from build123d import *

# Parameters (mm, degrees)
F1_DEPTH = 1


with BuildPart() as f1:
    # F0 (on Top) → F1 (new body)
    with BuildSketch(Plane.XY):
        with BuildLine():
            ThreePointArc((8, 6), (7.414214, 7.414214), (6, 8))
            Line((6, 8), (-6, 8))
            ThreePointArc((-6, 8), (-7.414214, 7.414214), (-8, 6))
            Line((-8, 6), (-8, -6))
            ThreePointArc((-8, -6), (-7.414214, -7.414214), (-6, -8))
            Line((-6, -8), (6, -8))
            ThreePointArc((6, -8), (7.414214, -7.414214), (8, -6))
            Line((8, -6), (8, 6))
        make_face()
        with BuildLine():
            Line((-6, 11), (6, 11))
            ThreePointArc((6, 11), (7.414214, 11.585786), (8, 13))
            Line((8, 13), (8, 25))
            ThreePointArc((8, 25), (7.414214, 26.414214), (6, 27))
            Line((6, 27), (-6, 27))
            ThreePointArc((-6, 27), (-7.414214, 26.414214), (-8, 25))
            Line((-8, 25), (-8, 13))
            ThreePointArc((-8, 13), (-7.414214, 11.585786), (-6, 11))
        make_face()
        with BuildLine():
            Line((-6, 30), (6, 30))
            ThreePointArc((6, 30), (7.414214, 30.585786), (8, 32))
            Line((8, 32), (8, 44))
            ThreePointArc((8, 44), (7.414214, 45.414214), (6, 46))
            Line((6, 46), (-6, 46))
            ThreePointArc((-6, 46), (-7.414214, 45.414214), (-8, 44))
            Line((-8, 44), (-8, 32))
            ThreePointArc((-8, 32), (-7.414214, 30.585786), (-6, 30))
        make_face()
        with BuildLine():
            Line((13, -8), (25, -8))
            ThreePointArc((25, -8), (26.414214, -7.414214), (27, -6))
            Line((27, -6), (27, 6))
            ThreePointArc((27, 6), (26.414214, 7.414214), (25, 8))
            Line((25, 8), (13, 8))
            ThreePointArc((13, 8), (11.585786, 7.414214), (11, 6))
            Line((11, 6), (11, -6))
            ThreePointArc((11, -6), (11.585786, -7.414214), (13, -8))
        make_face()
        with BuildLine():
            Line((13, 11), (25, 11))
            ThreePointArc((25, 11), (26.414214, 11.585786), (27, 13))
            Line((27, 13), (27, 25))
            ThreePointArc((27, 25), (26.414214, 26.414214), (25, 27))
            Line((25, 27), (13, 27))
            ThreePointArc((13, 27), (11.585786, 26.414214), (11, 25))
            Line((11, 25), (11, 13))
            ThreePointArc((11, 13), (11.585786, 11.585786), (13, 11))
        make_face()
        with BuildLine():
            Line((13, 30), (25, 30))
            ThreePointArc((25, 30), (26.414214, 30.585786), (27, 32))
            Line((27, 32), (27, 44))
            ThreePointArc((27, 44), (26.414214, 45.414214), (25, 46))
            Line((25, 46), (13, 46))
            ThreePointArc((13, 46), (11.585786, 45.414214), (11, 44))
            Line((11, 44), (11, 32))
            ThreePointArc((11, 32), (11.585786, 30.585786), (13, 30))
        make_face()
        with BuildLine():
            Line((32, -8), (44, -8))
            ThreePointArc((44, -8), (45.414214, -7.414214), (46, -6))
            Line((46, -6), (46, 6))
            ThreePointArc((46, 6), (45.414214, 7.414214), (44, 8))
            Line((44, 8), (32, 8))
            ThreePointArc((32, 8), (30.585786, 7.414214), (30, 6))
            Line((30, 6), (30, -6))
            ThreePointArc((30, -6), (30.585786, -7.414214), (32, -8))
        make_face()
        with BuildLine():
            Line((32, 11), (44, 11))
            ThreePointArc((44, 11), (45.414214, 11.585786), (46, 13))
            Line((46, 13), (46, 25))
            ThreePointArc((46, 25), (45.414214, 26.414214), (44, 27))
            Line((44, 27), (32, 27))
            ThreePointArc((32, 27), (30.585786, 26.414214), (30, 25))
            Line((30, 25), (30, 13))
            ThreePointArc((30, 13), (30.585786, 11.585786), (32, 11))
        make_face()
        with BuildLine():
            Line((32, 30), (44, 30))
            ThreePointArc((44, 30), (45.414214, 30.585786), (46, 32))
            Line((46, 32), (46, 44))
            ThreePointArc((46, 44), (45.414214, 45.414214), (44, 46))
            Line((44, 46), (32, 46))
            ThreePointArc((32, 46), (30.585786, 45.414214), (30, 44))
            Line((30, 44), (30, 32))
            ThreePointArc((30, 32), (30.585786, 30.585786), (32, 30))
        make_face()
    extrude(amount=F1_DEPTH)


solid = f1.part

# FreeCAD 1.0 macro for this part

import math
import FreeCAD as App
import Part
import Sketcher

doc = App.newDocument("Part")
body = doc.addObject("PartDesign::Body", "Body")
body.AllowCompound = True

# Sketch on XY plane
sketch1 = body.newObject("Sketcher::SketchObject", "Sketch")
sketch1.AttachmentSupport = (doc.getObject("XY_Plane"), [""])
sketch1.MapMode = "FlatFace"
sketch1.addGeometry([
    Part.ArcOfCircle(Part.Circle(App.Vector(6, 6, 0), App.Vector(0, 0, 1), 2), math.radians(0), math.radians(90)),  # 0
    Part.LineSegment(App.Vector(6, 8, 0), App.Vector(-6, 8, 0)),  # 1
    Part.ArcOfCircle(Part.Circle(App.Vector(-6, 6, 0), App.Vector(0, 0, 1), 2), math.radians(90), math.radians(180)),  # 2
    Part.LineSegment(App.Vector(-8, 6, 0), App.Vector(-8, -6, 0)),  # 3
    Part.ArcOfCircle(Part.Circle(App.Vector(-6, -6, 0), App.Vector(0, 0, 1), 2), math.radians(180), math.radians(270)),  # 4
    Part.LineSegment(App.Vector(-6, -8, 0), App.Vector(6, -8, 0)),  # 5
    Part.ArcOfCircle(Part.Circle(App.Vector(6, -6, 0), App.Vector(0, 0, 1), 2), math.radians(-90), math.radians(0)),  # 6
    Part.LineSegment(App.Vector(8, -6, 0), App.Vector(8, 6, 0)),  # 7
    Part.LineSegment(App.Vector(-6, 11, 0), App.Vector(6, 11, 0)),  # 8
    Part.ArcOfCircle(Part.Circle(App.Vector(6, 13, 0), App.Vector(0, 0, 1), 2), math.radians(-90), math.radians(0)),  # 9
    Part.LineSegment(App.Vector(8, 13, 0), App.Vector(8, 25, 0)),  # 10
    Part.ArcOfCircle(Part.Circle(App.Vector(6, 25, 0), App.Vector(0, 0, 1), 2), math.radians(0), math.radians(90)),  # 11
    Part.LineSegment(App.Vector(6, 27, 0), App.Vector(-6, 27, 0)),  # 12
    Part.ArcOfCircle(Part.Circle(App.Vector(-6, 25, 0), App.Vector(0, 0, 1), 2), math.radians(90), math.radians(180)),  # 13
    Part.LineSegment(App.Vector(-8, 25, 0), App.Vector(-8, 13, 0)),  # 14
    Part.ArcOfCircle(Part.Circle(App.Vector(-6, 13, 0), App.Vector(0, 0, 1), 2), math.radians(180), math.radians(270)),  # 15
    Part.LineSegment(App.Vector(-6, 30, 0), App.Vector(6, 30, 0)),  # 16
    Part.ArcOfCircle(Part.Circle(App.Vector(6, 32, 0), App.Vector(0, 0, 1), 2), math.radians(-90), math.radians(0)),  # 17
    Part.LineSegment(App.Vector(8, 32, 0), App.Vector(8, 44, 0)),  # 18
    Part.ArcOfCircle(Part.Circle(App.Vector(6, 44, 0), App.Vector(0, 0, 1), 2), math.radians(0), math.radians(90)),  # 19
    Part.LineSegment(App.Vector(6, 46, 0), App.Vector(-6, 46, 0)),  # 20
    Part.ArcOfCircle(Part.Circle(App.Vector(-6, 44, 0), App.Vector(0, 0, 1), 2), math.radians(90), math.radians(180)),  # 21
    Part.LineSegment(App.Vector(-8, 44, 0), App.Vector(-8, 32, 0)),  # 22
    Part.ArcOfCircle(Part.Circle(App.Vector(-6, 32, 0), App.Vector(0, 0, 1), 2), math.radians(180), math.radians(270)),  # 23
    Part.LineSegment(App.Vector(13, -8, 0), App.Vector(25, -8, 0)),  # 24
    Part.ArcOfCircle(Part.Circle(App.Vector(25, -6, 0), App.Vector(0, 0, 1), 2), math.radians(-90), math.radians(0)),  # 25
    Part.LineSegment(App.Vector(27, -6, 0), App.Vector(27, 6, 0)),  # 26
    Part.ArcOfCircle(Part.Circle(App.Vector(25, 6, 0), App.Vector(0, 0, 1), 2), math.radians(0), math.radians(90)),  # 27
    Part.LineSegment(App.Vector(25, 8, 0), App.Vector(13, 8, 0)),  # 28
    Part.ArcOfCircle(Part.Circle(App.Vector(13, 6, 0), App.Vector(0, 0, 1), 2), math.radians(90), math.radians(180)),  # 29
    Part.LineSegment(App.Vector(11, 6, 0), App.Vector(11, -6, 0)),  # 30
    Part.ArcOfCircle(Part.Circle(App.Vector(13, -6, 0), App.Vector(0, 0, 1), 2), math.radians(180), math.radians(270)),  # 31
    Part.LineSegment(App.Vector(13, 11, 0), App.Vector(25, 11, 0)),  # 32
    Part.ArcOfCircle(Part.Circle(App.Vector(25, 13, 0), App.Vector(0, 0, 1), 2), math.radians(-90), math.radians(0)),  # 33
    Part.LineSegment(App.Vector(27, 13, 0), App.Vector(27, 25, 0)),  # 34
    Part.ArcOfCircle(Part.Circle(App.Vector(25, 25, 0), App.Vector(0, 0, 1), 2), math.radians(0), math.radians(90)),  # 35
    Part.LineSegment(App.Vector(25, 27, 0), App.Vector(13, 27, 0)),  # 36
    Part.ArcOfCircle(Part.Circle(App.Vector(13, 25, 0), App.Vector(0, 0, 1), 2), math.radians(90), math.radians(180)),  # 37
    Part.LineSegment(App.Vector(11, 25, 0), App.Vector(11, 13, 0)),  # 38
    Part.ArcOfCircle(Part.Circle(App.Vector(13, 13, 0), App.Vector(0, 0, 1), 2), math.radians(180), math.radians(270)),  # 39
    Part.LineSegment(App.Vector(13, 30, 0), App.Vector(25, 30, 0)),  # 40
    Part.ArcOfCircle(Part.Circle(App.Vector(25, 32, 0), App.Vector(0, 0, 1), 2), math.radians(-90), math.radians(0)),  # 41
    Part.LineSegment(App.Vector(27, 32, 0), App.Vector(27, 44, 0)),  # 42
    Part.ArcOfCircle(Part.Circle(App.Vector(25, 44, 0), App.Vector(0, 0, 1), 2), math.radians(0), math.radians(90)),  # 43
    Part.LineSegment(App.Vector(25, 46, 0), App.Vector(13, 46, 0)),  # 44
    Part.ArcOfCircle(Part.Circle(App.Vector(13, 44, 0), App.Vector(0, 0, 1), 2), math.radians(90), math.radians(180)),  # 45
    Part.LineSegment(App.Vector(11, 44, 0), App.Vector(11, 32, 0)),  # 46
    Part.ArcOfCircle(Part.Circle(App.Vector(13, 32, 0), App.Vector(0, 0, 1), 2), math.radians(180), math.radians(270)),  # 47
    Part.LineSegment(App.Vector(32, -8, 0), App.Vector(44, -8, 0)),  # 48
    Part.ArcOfCircle(Part.Circle(App.Vector(44, -6, 0), App.Vector(0, 0, 1), 2), math.radians(-90), math.radians(0)),  # 49
    Part.LineSegment(App.Vector(46, -6, 0), App.Vector(46, 6, 0)),  # 50
    Part.ArcOfCircle(Part.Circle(App.Vector(44, 6, 0), App.Vector(0, 0, 1), 2), math.radians(0), math.radians(90)),  # 51
    Part.LineSegment(App.Vector(44, 8, 0), App.Vector(32, 8, 0)),  # 52
    Part.ArcOfCircle(Part.Circle(App.Vector(32, 6, 0), App.Vector(0, 0, 1), 2), math.radians(90), math.radians(180)),  # 53
    Part.LineSegment(App.Vector(30, 6, 0), App.Vector(30, -6, 0)),  # 54
    Part.ArcOfCircle(Part.Circle(App.Vector(32, -6, 0), App.Vector(0, 0, 1), 2), math.radians(180), math.radians(270)),  # 55
    Part.LineSegment(App.Vector(32, 11, 0), App.Vector(44, 11, 0)),  # 56
    Part.ArcOfCircle(Part.Circle(App.Vector(44, 13, 0), App.Vector(0, 0, 1), 2), math.radians(-90), math.radians(0)),  # 57
    Part.LineSegment(App.Vector(46, 13, 0), App.Vector(46, 25, 0)),  # 58
    Part.ArcOfCircle(Part.Circle(App.Vector(44, 25, 0), App.Vector(0, 0, 1), 2), math.radians(0), math.radians(90)),  # 59
    Part.LineSegment(App.Vector(44, 27, 0), App.Vector(32, 27, 0)),  # 60
    Part.ArcOfCircle(Part.Circle(App.Vector(32, 25, 0), App.Vector(0, 0, 1), 2), math.radians(90), math.radians(180)),  # 61
    Part.LineSegment(App.Vector(30, 25, 0), App.Vector(30, 13, 0)),  # 62
    Part.ArcOfCircle(Part.Circle(App.Vector(32, 13, 0), App.Vector(0, 0, 1), 2), math.radians(180), math.radians(270)),  # 63
    Part.LineSegment(App.Vector(32, 30, 0), App.Vector(44, 30, 0)),  # 64
    Part.ArcOfCircle(Part.Circle(App.Vector(44, 32, 0), App.Vector(0, 0, 1), 2), math.radians(-90), math.radians(0)),  # 65
    Part.LineSegment(App.Vector(46, 32, 0), App.Vector(46, 44, 0)),  # 66
    Part.ArcOfCircle(Part.Circle(App.Vector(44, 44, 0), App.Vector(0, 0, 1), 2), math.radians(0), math.radians(90)),  # 67
    Part.LineSegment(App.Vector(44, 46, 0), App.Vector(32, 46, 0)),  # 68
    Part.ArcOfCircle(Part.Circle(App.Vector(32, 44, 0), App.Vector(0, 0, 1), 2), math.radians(90), math.radians(180)),  # 69
    Part.LineSegment(App.Vector(30, 44, 0), App.Vector(30, 32, 0)),  # 70
    Part.ArcOfCircle(Part.Circle(App.Vector(32, 32, 0), App.Vector(0, 0, 1), 2), math.radians(180), math.radians(270)),  # 71
], False)
sketch1.addConstraint([
    Sketcher.Constraint("Tangent", 0, 2, 1, 1),
    Sketcher.Constraint("Tangent", 1, 2, 2, 1),
    Sketcher.Constraint("Tangent", 2, 2, 3, 1),
    Sketcher.Constraint("Tangent", 3, 2, 4, 1),
    Sketcher.Constraint("Tangent", 4, 2, 5, 1),
    Sketcher.Constraint("Tangent", 5, 2, 6, 1),
    Sketcher.Constraint("Tangent", 6, 2, 7, 1),
    Sketcher.Constraint("Tangent", 7, 2, 0, 1),
    Sketcher.Constraint("Tangent", 8, 2, 9, 1),
    Sketcher.Constraint("Tangent", 9, 2, 10, 1),
    Sketcher.Constraint("Tangent", 10, 2, 11, 1),
    Sketcher.Constraint("Tangent", 11, 2, 12, 1),
    Sketcher.Constraint("Tangent", 12, 2, 13, 1),
    Sketcher.Constraint("Tangent", 13, 2, 14, 1),
    Sketcher.Constraint("Tangent", 14, 2, 15, 1),
    Sketcher.Constraint("Tangent", 15, 2, 8, 1),
    Sketcher.Constraint("Tangent", 16, 2, 17, 1),
    Sketcher.Constraint("Tangent", 17, 2, 18, 1),
    Sketcher.Constraint("Tangent", 18, 2, 19, 1),
    Sketcher.Constraint("Tangent", 19, 2, 20, 1),
    Sketcher.Constraint("Tangent", 20, 2, 21, 1),
    Sketcher.Constraint("Tangent", 21, 2, 22, 1),
    Sketcher.Constraint("Tangent", 22, 2, 23, 1),
    Sketcher.Constraint("Tangent", 23, 2, 16, 1),
    Sketcher.Constraint("Tangent", 24, 2, 25, 1),
    Sketcher.Constraint("Tangent", 25, 2, 26, 1),
    Sketcher.Constraint("Tangent", 26, 2, 27, 1),
    Sketcher.Constraint("Tangent", 27, 2, 28, 1),
    Sketcher.Constraint("Tangent", 28, 2, 29, 1),
    Sketcher.Constraint("Tangent", 29, 2, 30, 1),
    Sketcher.Constraint("Tangent", 30, 2, 31, 1),
    Sketcher.Constraint("Tangent", 31, 2, 24, 1),
    Sketcher.Constraint("Tangent", 32, 2, 33, 1),
    Sketcher.Constraint("Tangent", 33, 2, 34, 1),
    Sketcher.Constraint("Tangent", 34, 2, 35, 1),
    Sketcher.Constraint("Tangent", 35, 2, 36, 1),
    Sketcher.Constraint("Tangent", 36, 2, 37, 1),
    Sketcher.Constraint("Tangent", 37, 2, 38, 1),
    Sketcher.Constraint("Tangent", 38, 2, 39, 1),
    Sketcher.Constraint("Tangent", 39, 2, 32, 1),
    Sketcher.Constraint("Tangent", 40, 2, 41, 1),
    Sketcher.Constraint("Tangent", 41, 2, 42, 1),
    Sketcher.Constraint("Tangent", 42, 2, 43, 1),
    Sketcher.Constraint("Tangent", 43, 2, 44, 1),
    Sketcher.Constraint("Tangent", 44, 2, 45, 1),
    Sketcher.Constraint("Tangent", 45, 2, 46, 1),
    Sketcher.Constraint("Tangent", 46, 2, 47, 1),
    Sketcher.Constraint("Tangent", 47, 2, 40, 1),
    Sketcher.Constraint("Tangent", 48, 2, 49, 1),
    Sketcher.Constraint("Tangent", 49, 2, 50, 1),
    Sketcher.Constraint("Tangent", 50, 2, 51, 1),
    Sketcher.Constraint("Tangent", 51, 2, 52, 1),
    Sketcher.Constraint("Tangent", 52, 2, 53, 1),
    Sketcher.Constraint("Tangent", 53, 2, 54, 1),
    Sketcher.Constraint("Tangent", 54, 2, 55, 1),
    Sketcher.Constraint("Tangent", 55, 2, 48, 1),
    Sketcher.Constraint("Tangent", 56, 2, 57, 1),
    Sketcher.Constraint("Tangent", 57, 2, 58, 1),
    Sketcher.Constraint("Tangent", 58, 2, 59, 1),
    Sketcher.Constraint("Tangent", 59, 2, 60, 1),
    Sketcher.Constraint("Tangent", 60, 2, 61, 1),
    Sketcher.Constraint("Tangent", 61, 2, 62, 1),
    Sketcher.Constraint("Tangent", 62, 2, 63, 1),
    Sketcher.Constraint("Tangent", 63, 2, 56, 1),
    Sketcher.Constraint("Tangent", 64, 2, 65, 1),
    Sketcher.Constraint("Tangent", 65, 2, 66, 1),
    Sketcher.Constraint("Tangent", 66, 2, 67, 1),
    Sketcher.Constraint("Tangent", 67, 2, 68, 1),
    Sketcher.Constraint("Tangent", 68, 2, 69, 1),
    Sketcher.Constraint("Tangent", 69, 2, 70, 1),
    Sketcher.Constraint("Tangent", 70, 2, 71, 1),
    Sketcher.Constraint("Tangent", 71, 2, 64, 1),
    Sketcher.Constraint("Horizontal", 1),
    Sketcher.Constraint("Vertical", 3),
    Sketcher.Constraint("Horizontal", 5),
    Sketcher.Constraint("Vertical", 7),
    Sketcher.Constraint("Horizontal", 8),
    Sketcher.Constraint("Vertical", 10),
    Sketcher.Constraint("Horizontal", 12),
    Sketcher.Constraint("Vertical", 14),
    Sketcher.Constraint("Horizontal", 16),
    Sketcher.Constraint("Vertical", 18),
    Sketcher.Constraint("Horizontal", 20),
    Sketcher.Constraint("Vertical", 22),
    Sketcher.Constraint("Horizontal", 24),
    Sketcher.Constraint("Vertical", 26),
    Sketcher.Constraint("Horizontal", 28),
    Sketcher.Constraint("Vertical", 30),
    Sketcher.Constraint("Horizontal", 32),
    Sketcher.Constraint("Vertical", 34),
    Sketcher.Constraint("Horizontal", 36),
    Sketcher.Constraint("Vertical", 38),
    Sketcher.Constraint("Horizontal", 40),
    Sketcher.Constraint("Vertical", 42),
    Sketcher.Constraint("Horizontal", 44),
    Sketcher.Constraint("Vertical", 46),
    Sketcher.Constraint("Horizontal", 48),
    Sketcher.Constraint("Vertical", 50),
    Sketcher.Constraint("Horizontal", 52),
    Sketcher.Constraint("Vertical", 54),
    Sketcher.Constraint("Horizontal", 56),
    Sketcher.Constraint("Vertical", 58),
    Sketcher.Constraint("Horizontal", 60),
    Sketcher.Constraint("Vertical", 62),
    Sketcher.Constraint("Horizontal", 64),
    Sketcher.Constraint("Vertical", 66),
    Sketcher.Constraint("Horizontal", 68),
    Sketcher.Constraint("Vertical", 70),
    Sketcher.Constraint("Equal", 0, 2),
    Sketcher.Constraint("Equal", 2, 4),
    Sketcher.Constraint("Equal", 4, 6),
    Sketcher.Constraint("Equal", 6, 9),
    Sketcher.Constraint("Equal", 9, 11),
    Sketcher.Constraint("Equal", 11, 13),
    Sketcher.Constraint("Equal", 13, 15),
    Sketcher.Constraint("Equal", 15, 17),
    Sketcher.Constraint("Equal", 17, 19),
    Sketcher.Constraint("Equal", 19, 21),
    Sketcher.Constraint("Equal", 21, 23),
    Sketcher.Constraint("Equal", 23, 25),
    Sketcher.Constraint("Equal", 25, 27),
    Sketcher.Constraint("Equal", 27, 29),
    Sketcher.Constraint("Equal", 29, 31),
    Sketcher.Constraint("Equal", 31, 33),
    Sketcher.Constraint("Equal", 33, 35),
    Sketcher.Constraint("Equal", 35, 37),
    Sketcher.Constraint("Equal", 37, 39),
    Sketcher.Constraint("Equal", 39, 41),
    Sketcher.Constraint("Equal", 41, 43),
    Sketcher.Constraint("Equal", 43, 45),
    Sketcher.Constraint("Equal", 45, 47),
    Sketcher.Constraint("Equal", 47, 49),
    Sketcher.Constraint("Equal", 49, 51),
    Sketcher.Constraint("Equal", 51, 53),
    Sketcher.Constraint("Equal", 53, 55),
    Sketcher.Constraint("Equal", 55, 57),
    Sketcher.Constraint("Equal", 57, 59),
    Sketcher.Constraint("Equal", 59, 61),
    Sketcher.Constraint("Equal", 61, 63),
    Sketcher.Constraint("Equal", 63, 65),
    Sketcher.Constraint("Equal", 65, 67),
    Sketcher.Constraint("Equal", 67, 69),
    Sketcher.Constraint("Equal", 69, 71),
    Sketcher.Constraint("Symmetric", 0, 3, 4, 3, -1, 1),
    Sketcher.Constraint("Horizontal", 6, 3, 25, 3),
    Sketcher.Constraint("Horizontal", 2, 3, 27, 3),
    Sketcher.Constraint("Horizontal", 15, 3, 33, 3),
    Sketcher.Constraint("Horizontal", 13, 3, 35, 3),
    Sketcher.Constraint("Horizontal", 23, 3, 41, 3),
    Sketcher.Constraint("Horizontal", 21, 3, 43, 3),
    Sketcher.Constraint("Horizontal", 31, 3, 49, 3),
    Sketcher.Constraint("Horizontal", 29, 3, 51, 3),
    Sketcher.Constraint("Horizontal", 39, 3, 57, 3),
    Sketcher.Constraint("Horizontal", 37, 3, 59, 3),
    Sketcher.Constraint("Horizontal", 47, 3, 65, 3),
    Sketcher.Constraint("Horizontal", 45, 3, 67, 3),
    Sketcher.Constraint("Vertical", 6, 3, 9, 3),
    Sketcher.Constraint("Vertical", 4, 3, 13, 3),
    Sketcher.Constraint("Vertical", 11, 3, 17, 3),
    Sketcher.Constraint("Vertical", 15, 3, 21, 3),
    Sketcher.Constraint("Vertical", 27, 3, 33, 3),
    Sketcher.Constraint("Vertical", 31, 3, 37, 3),
    Sketcher.Constraint("Vertical", 35, 3, 41, 3),
    Sketcher.Constraint("Vertical", 39, 3, 45, 3),
    Sketcher.Constraint("Vertical", 51, 3, 57, 3),
    Sketcher.Constraint("Vertical", 55, 3, 61, 3),
    Sketcher.Constraint("Vertical", 59, 3, 65, 3),
    Sketcher.Constraint("Vertical", 63, 3, 69, 3),
    Sketcher.Constraint("Equal", 20, 24),
    Sketcher.Constraint("Equal", 44, 48),
    Sketcher.Constraint("Equal", 68, 3),
    Sketcher.Constraint("Equal", 7, 10),
    Sketcher.Constraint("Equal", 14, 18),
    Sketcher.Constraint("Radius", 0, 1.999999),
    Sketcher.Constraint("DistanceX", 1, 2, 1, 1, 12.0),
    Sketcher.Constraint("DistanceY", -1, 1, 9, 3, 12.999999),
    Sketcher.Constraint("DistanceY", -1, 1, 17, 3, 31.999999),
    Sketcher.Constraint("DistanceX", -1, 1, 25, 3, 25.000001),
    Sketcher.Constraint("DistanceX", -1, 1, 49, 3, 44.000001),
])
pad1 = body.newObject("PartDesign::Pad", "Pad")
pad1.Profile = sketch1
pad1.Length = 1

doc.recompute()
